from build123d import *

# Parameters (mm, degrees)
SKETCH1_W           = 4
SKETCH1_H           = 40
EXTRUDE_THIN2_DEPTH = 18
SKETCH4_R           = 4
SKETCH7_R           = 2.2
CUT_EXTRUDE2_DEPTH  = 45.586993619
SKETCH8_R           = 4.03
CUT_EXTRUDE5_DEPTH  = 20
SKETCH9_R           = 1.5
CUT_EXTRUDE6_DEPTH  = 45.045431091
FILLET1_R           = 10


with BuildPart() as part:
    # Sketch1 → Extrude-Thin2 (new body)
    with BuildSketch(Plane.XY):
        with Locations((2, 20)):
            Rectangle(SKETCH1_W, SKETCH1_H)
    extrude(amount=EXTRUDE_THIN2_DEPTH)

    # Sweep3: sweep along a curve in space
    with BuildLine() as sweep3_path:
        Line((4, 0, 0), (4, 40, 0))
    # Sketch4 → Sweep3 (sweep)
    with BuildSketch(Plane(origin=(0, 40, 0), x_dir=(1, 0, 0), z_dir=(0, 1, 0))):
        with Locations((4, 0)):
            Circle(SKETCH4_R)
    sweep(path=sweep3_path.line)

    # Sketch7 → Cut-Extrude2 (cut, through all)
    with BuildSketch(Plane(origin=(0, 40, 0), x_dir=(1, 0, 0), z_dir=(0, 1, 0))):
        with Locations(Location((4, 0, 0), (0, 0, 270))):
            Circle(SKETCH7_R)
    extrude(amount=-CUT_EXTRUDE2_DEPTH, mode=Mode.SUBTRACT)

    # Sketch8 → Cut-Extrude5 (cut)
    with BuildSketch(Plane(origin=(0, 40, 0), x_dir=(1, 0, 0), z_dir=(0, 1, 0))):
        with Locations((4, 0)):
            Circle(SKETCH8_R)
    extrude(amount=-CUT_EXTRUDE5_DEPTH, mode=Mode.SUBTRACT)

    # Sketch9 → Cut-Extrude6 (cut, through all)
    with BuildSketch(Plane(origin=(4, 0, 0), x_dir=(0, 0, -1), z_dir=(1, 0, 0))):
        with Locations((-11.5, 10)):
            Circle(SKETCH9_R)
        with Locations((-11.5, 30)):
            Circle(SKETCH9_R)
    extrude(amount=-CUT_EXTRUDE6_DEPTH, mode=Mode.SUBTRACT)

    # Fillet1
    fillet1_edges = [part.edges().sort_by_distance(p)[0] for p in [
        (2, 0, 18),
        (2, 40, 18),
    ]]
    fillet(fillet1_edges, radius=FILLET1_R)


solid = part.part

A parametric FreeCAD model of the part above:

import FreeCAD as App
import Part
import Sketcher

V = App.Vector
Q = App.Units.Quantity


def edges_at(feature, points):
    """Names of the edges that pass closest to the given points."""
    edges = feature.Shape.Edges
    near = lambda p: min(range(len(edges)), key=lambda i: edges[i].distToShape(Part.Vertex(*p))[0])
    return sorted({f"Edge{near(p) + 1}" for p in points})


def add_polygon(sketch, points):
    """Adds a closed chain of lines whose ends are joined by coincident constraints."""
    first, n = sketch.GeometryCount, len(points)
    for a, b in zip(points, points[1:] + points[:1]):
        sketch.addGeometry(Part.LineSegment(App.Vector(*a, 0), App.Vector(*b, 0)), False)
    for i in range(n):
        sketch.addConstraint(Sketcher.Constraint("Coincident", first + i, 2, first + (i + 1) % n, 1))

doc = App.newDocument("Part")
body = doc.addObject("PartDesign::Body", "Body")

# Sketch on XY plane
sketch1 = body.newObject("Sketcher::SketchObject", "Sketch")
sketch1.AttachmentSupport = (doc.getObject("XY_Plane"), [""])
sketch1.MapMode = "FlatFace"
add_polygon(sketch1, [(0, 40), (0, 0), (4, 0), (4, 40)])  # lines 0-3
sketch1.addConstraint(Sketcher.Constraint("Vertical", 0))
sketch1.addConstraint(Sketcher.Constraint("Horizontal", 1))
sketch1.addConstraint(Sketcher.Constraint("Vertical", 2))
sketch1.addConstraint(Sketcher.Constraint("Horizontal", 3))
sketch1.addConstraint(Sketcher.Constraint("Coincident", 0, 2, -1, 1))
sketch1.addConstraint(Sketcher.Constraint("DistanceX", 1, 1, 1, 2, Q("4 mm")))
sketch1.addConstraint(Sketcher.Constraint("DistanceY", 0, 2, 0, 1, Q("40 mm")))
pad1 = body.newObject("PartDesign::Pad", "Pad")
pad1.Profile = sketch1
pad1.Length = 18

# Sketch on XZ plane
sketch2 = body.newObject("Sketcher::SketchObject", "Sketch001")
sketch2.AttachmentSupport = (doc.getObject("XZ_Plane"), [""])
sketch2.MapMode = "FlatFace"
sketch2.AttachmentOffset = App.Placement(V(0, 0, -40), App.Rotation())
sketch2.addGeometry(Part.Circle(V(4, 0, 0), V(0, 0, 1), 4), False)
sketch2.addConstraint(Sketcher.Constraint("PointOnObject", 0, 3, -1))
sketch2.addConstraint(Sketcher.Constraint("Diameter", 0, Q("8 mm")))
sketch2.addConstraint(Sketcher.Constraint("DistanceX", -1, 1, 0, 3, Q("4 mm")))

# Sketch on XY plane
sketch3 = body.newObject("Sketcher::SketchObject", "Sketch002")
sketch3.AttachmentSupport = (doc.getObject("XY_Plane"), [""])
sketch3.MapMode = "FlatFace"
sketch3.addGeometry(Part.LineSegment(V(4, 0, 0), V(4, 40, 0)), False)
sketch3.addConstraint(Sketcher.Constraint("Vertical", 0))
sketch3.addConstraint(Sketcher.Constraint("PointOnObject", 0, 1, -1))
sketch3.addConstraint(Sketcher.Constraint("DistanceY", 0, 1, 0, 2, Q("40 mm")))
sketch3.addConstraint(Sketcher.Constraint("DistanceX", -1, 1, 0, 1, Q("4 mm")))
doc.recompute()

additivepipe = body.newObject("PartDesign::AdditivePipe", "AdditivePipe")
additivepipe.Profile = sketch2
additivepipe.Spine = (sketch3, ["Edge1"])

# Sketch on XZ plane
sketch4 = body.newObject("Sketcher::SketchObject", "Sketch003")
sketch4.AttachmentSupport = (doc.getObject("XZ_Plane"), [""])
sketch4.MapMode = "FlatFace"
sketch4.AttachmentOffset = App.Placement(V(0, 0, -40), App.Rotation())
sketch4.addGeometry(Part.Circle(V(4, 0, 0), V(0, 0, 1), 2.2), False)
sketch4.addConstraint(Sketcher.Constraint("PointOnObject", 0, 3, -1))
sketch4.addConstraint(Sketcher.Constraint("Diameter", 0, Q("4.4 mm")))
sketch4.addConstraint(Sketcher.Constraint("DistanceX", -1, 1, 0, 3, Q("4 mm")))
pocket1 = body.newObject("PartDesign::Pocket", "Pocket")
pocket1.Profile = sketch4
pocket1.Type = "ThroughAll"
pocket1.Reversed = True

# Sketch on XZ plane
sketch5 = body.newObject("Sketcher::SketchObject", "Sketch004")
sketch5.AttachmentSupport = (doc.getObject("XZ_Plane"), [""])
sketch5.MapMode = "FlatFace"
sketch5.AttachmentOffset = App.Placement(V(0, 0, -40), App.Rotation())
sketch5.addGeometry(Part.Circle(V(4, 0, 0), V(0, 0, 1), 4.03), False)
sketch5.addConstraint(Sketcher.Constraint("PointOnObject", 0, 3, -1))
sketch5.addConstraint(Sketcher.Constraint("Diameter", 0, Q("8.06 mm")))
sketch5.addConstraint(Sketcher.Constraint("DistanceX", -1, 1, 0, 3, Q("4 mm")))
pocket2 = body.newObject("PartDesign::Pocket", "Pocket001")
pocket2.Profile = sketch5
pocket2.Length = 20
pocket2.Reversed = True

# Sketch on YZ plane
sketch6 = body.newObject("Sketcher::SketchObject", "Sketch005")
sketch6.AttachmentSupport = (doc.getObject("YZ_Plane"), [""])
sketch6.MapMode = "FlatFace"
sketch6.AttachmentOffset = App.Placement(V(0, 0, 4), App.Rotation())
sketch6.addGeometry(Part.Circle(V(10, 11.5, 0), V(0, 0, 1), 1.5), False)
sketch6.addGeometry(Part.Circle(V(30, 11.5, 0), V(0, 0, 1), 1.5), False)
sketch6.addConstraint(Sketcher.Constraint("Equal", 0, 1))
sketch6.addConstraint(Sketcher.Constraint("Horizontal", 0, 3, 1, 3))
sketch6.addConstraint(Sketcher.Constraint("Diameter", 0, Q("3 mm")))
sketch6.addConstraint(Sketcher.Constraint("DistanceX", -1, 1, 0, 3, Q("10 mm")))
sketch6.addConstraint(Sketcher.Constraint("DistanceX", -1, 1, 1, 3, Q("30 mm")))
sketch6.addConstraint(Sketcher.Constraint("DistanceY", -1, 1, 0, 3, Q("11.5 mm")))
pocket3 = body.newObject("PartDesign::Pocket", "Pocket002")
pocket3.Profile = sketch6
pocket3.Type = "ThroughAll"
doc.recompute()

fillet = body.newObject("PartDesign::Fillet", "Fillet")
fillet.Base = (pocket3, edges_at(pocket3, [(2, 0, 18), (2, 40, 18)]))
fillet.Radius = 10

doc.recompute()
